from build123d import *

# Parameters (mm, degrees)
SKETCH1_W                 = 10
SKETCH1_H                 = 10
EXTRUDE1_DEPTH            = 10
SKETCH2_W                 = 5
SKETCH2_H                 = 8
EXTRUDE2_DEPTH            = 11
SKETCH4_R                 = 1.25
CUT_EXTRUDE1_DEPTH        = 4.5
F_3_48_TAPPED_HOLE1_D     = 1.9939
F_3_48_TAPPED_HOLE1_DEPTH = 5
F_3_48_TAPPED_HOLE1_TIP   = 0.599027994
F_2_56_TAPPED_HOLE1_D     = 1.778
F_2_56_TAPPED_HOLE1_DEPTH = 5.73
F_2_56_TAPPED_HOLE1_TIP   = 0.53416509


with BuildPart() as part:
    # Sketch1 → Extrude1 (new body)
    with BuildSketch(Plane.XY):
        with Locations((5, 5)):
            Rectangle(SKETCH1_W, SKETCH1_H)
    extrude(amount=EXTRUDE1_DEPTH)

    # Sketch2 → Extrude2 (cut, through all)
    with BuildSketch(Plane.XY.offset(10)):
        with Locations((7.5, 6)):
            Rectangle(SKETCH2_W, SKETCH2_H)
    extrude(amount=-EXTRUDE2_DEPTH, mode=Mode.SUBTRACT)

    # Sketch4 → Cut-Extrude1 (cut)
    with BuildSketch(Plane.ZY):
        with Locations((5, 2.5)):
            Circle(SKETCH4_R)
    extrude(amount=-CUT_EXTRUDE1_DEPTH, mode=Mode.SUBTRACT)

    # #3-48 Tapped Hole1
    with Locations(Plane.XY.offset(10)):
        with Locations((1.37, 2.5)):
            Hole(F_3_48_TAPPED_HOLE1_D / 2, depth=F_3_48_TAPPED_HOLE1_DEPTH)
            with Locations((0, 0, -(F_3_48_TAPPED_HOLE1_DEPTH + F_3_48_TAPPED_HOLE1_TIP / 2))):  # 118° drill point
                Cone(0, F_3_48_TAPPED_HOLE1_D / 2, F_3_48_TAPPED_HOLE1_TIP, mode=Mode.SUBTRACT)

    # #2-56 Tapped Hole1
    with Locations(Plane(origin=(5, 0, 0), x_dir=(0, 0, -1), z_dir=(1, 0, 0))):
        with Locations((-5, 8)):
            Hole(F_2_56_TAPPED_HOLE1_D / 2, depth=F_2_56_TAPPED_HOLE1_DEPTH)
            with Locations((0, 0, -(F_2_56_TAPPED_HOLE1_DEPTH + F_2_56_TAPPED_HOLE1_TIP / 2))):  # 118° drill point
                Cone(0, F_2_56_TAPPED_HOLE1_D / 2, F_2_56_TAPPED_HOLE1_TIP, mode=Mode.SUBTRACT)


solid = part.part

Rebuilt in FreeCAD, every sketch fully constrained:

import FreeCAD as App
import Part
import Sketcher
from FreeCAD import Vector

doc = App.newDocument("Part")
params = doc.addObject("Spreadsheet::Sheet", "Params")
for row, (alias, value) in enumerate([
    ("sketch1_width", "10 mm"),
    ("pad1_length", "10 mm"),
    ("sketch2_width", "5 mm"),
    ("sketch2_height", "8 mm"),
    ("sketch3_diameter", "2.5 mm"),
    ("pocket2_length", "4.5 mm"),
    ("hole_diameter", "1.9939 mm"),
    ("hole_depth", "5 mm"),
    ("hole2_diameter", "1.778 mm"),
    ("hole2_depth", "5.73 mm"),
], start=1):
    params.set(f"A{row}", alias)
    params.set(f"B{row}", "=" + value)
    params.setAlias(f"B{row}", alias)

body = doc.addObject("PartDesign::Body", "Body")

sketch1 = body.newObject("Sketcher::SketchObject", "Sketch")
sketch1.AttachmentSupport = (doc.getObject("XY_Plane"), [""])
sketch1.MapMode = "FlatFace"
sketch1.addGeometry([
    Part.LineSegment(Vector(0, 10, 0), Vector(0, 0, 0)),
    Part.LineSegment(Vector(0, 0, 0), Vector(10, 0, 0)),
    Part.LineSegment(Vector(10, 0, 0), Vector(10, 10, 0)),
    Part.LineSegment(Vector(10, 10, 0), Vector(0, 10, 0)),
], False)
sketch1.addConstraint([
    Sketcher.Constraint("Coincident", 0, 2, 1, 1),
    Sketcher.Constraint("Coincident", 1, 2, 2, 1),
    Sketcher.Constraint("Coincident", 2, 2, 3, 1),
    Sketcher.Constraint("Coincident", 3, 2, 0, 1),
    Sketcher.Constraint("Vertical", 0),
    Sketcher.Constraint("Horizontal", 1),
    Sketcher.Constraint("Vertical", 2),
    Sketcher.Constraint("Horizontal", 3),
    Sketcher.Constraint("Coincident", 0, 2, -1, 1),
    Sketcher.Constraint("Equal", 3, 0),
    Sketcher.Constraint("DistanceX", 1, 1, 1, 2, 10.0),
])
sketch1.setExpression("Constraints[10]", "Params.sketch1_width")
pad1 = body.newObject("PartDesign::Pad", "Pad")
pad1.Profile = sketch1
pad1.setExpression("Length", "Params.pad1_length")

sketch2 = body.newObject("Sketcher::SketchObject", "Sketch001")
sketch2.AttachmentSupport = (doc.getObject("XY_Plane"), [""])
sketch2.MapMode = "FlatFace"
sketch2.AttachmentOffset = App.Placement(Vector(0, 0, 10), App.Rotation())
sketch2.addGeometry([
    Part.LineSegment(Vector(5, 10, 0), Vector(5, 2, 0)),
    Part.LineSegment(Vector(5, 2, 0), Vector(10, 2, 0)),
    Part.LineSegment(Vector(10, 2, 0), Vector(10, 10, 0)),
    Part.LineSegment(Vector(10, 10, 0), Vector(5, 10, 0)),
], False)
sketch2.addConstraint([
    Sketcher.Constraint("Coincident", 0, 2, 1, 1),
    Sketcher.Constraint("Coincident", 1, 2, 2, 1),
    Sketcher.Constraint("Coincident", 2, 2, 3, 1),
    Sketcher.Constraint("Coincident", 3, 2, 0, 1),
    Sketcher.Constraint("Vertical", 0),
    Sketcher.Constraint("Horizontal", 1),
    Sketcher.Constraint("Vertical", 2),
    Sketcher.Constraint("Horizontal", 3),
    Sketcher.Constraint("DistanceX", 1, 1, 1, 2, 5.0),
    Sketcher.Constraint("DistanceY", 0, 2, 0, 1, 8.0),
    Sketcher.Constraint("DistanceX", -1, 1, 0, 2, 5.0),
    Sketcher.Constraint("DistanceY", -1, 1, 0, 2, 2.0),
])
sketch2.setExpression("Constraints[8]", "Params.sketch2_width")
sketch2.setExpression("Constraints[9]", "Params.sketch2_height")
pocket1 = body.newObject("PartDesign::Pocket", "Pocket")
pocket1.Profile = sketch2
pocket1.Type = "ThroughAll"

sketch3 = body.newObject("Sketcher::SketchObject", "Sketch002")
sketch3.AttachmentSupport = (doc.getObject("YZ_Plane"), [""])
sketch3.MapMode = "FlatFace"
sketch3.addGeometry(Part.Circle(Vector(2.5, 5, 0), Vector(0, 0, 1), 1.2), False)
sketch3.addConstraint([
    Sketcher.Constraint("Diameter", 0, 2.5),
    Sketcher.Constraint("DistanceY", -1, 1, 0, 3, 5.0),
    Sketcher.Constraint("DistanceX", -1, 1, 0, 3, 2.5),
])
sketch3.setExpression("Constraints[0]", "Params.sketch3_diameter")
pocket2 = body.newObject("PartDesign::Pocket", "Pocket001")
pocket2.Profile = sketch3
pocket2.setExpression("Length", "Params.pocket2_length")
pocket2.Reversed = True

sketch4 = body.newObject("Sketcher::SketchObject", "Sketch003")
sketch4.AttachmentSupport = (doc.getObject("XY_Plane"), [""])
sketch4.MapMode = "FlatFace"
sketch4.AttachmentOffset = App.Placement(Vector(0, 0, 10), App.Rotation())
sketch4.addGeometry(Part.Circle(Vector(1.4, 2.5, 0), Vector(0, 0, 1), 1), False)
sketch4.addConstraint([
    Sketcher.Constraint("Diameter", 0, 1.9939),
    Sketcher.Constraint("DistanceY", -1, 1, 0, 3, 2.5),
    Sketcher.Constraint("DistanceX", -1, 1, 0, 3, 1.37),
])
doc.recompute()
hole = body.newObject("PartDesign::Hole", "Hole")
hole.Profile = sketch4
hole.ThreadType = "None"
hole.setExpression("Diameter", "Params.hole_diameter")
hole.DepthType = "Dimension"
hole.setExpression("Depth", "Params.hole_depth")
hole.DrillPoint = "Angled"
hole.DrillPointAngle = 118

sketch5 = body.newObject("Sketcher::SketchObject", "Sketch004")
sketch5.AttachmentSupport = (doc.getObject("YZ_Plane"), [""])
sketch5.MapMode = "FlatFace"
sketch5.AttachmentOffset = App.Placement(Vector(0, 0, 5), App.Rotation())
sketch5.addGeometry(Part.Circle(Vector(8, 5, 0), Vector(0, 0, 1), 0.9), False)
sketch5.addConstraint([
    Sketcher.Constraint("Diameter", 0, 1.778),
    Sketcher.Constraint("DistanceX", -1, 1, 0, 3, 8.0),
    Sketcher.Constraint("DistanceY", -1, 1, 0, 3, 5.0),
])
doc.recompute()
hole2 = body.newObject("PartDesign::Hole", "Hole001")
hole2.Profile = sketch5
hole2.ThreadType = "None"
hole2.setExpression("Diameter", "Params.hole2_diameter")
hole2.DepthType = "Dimension"
hole2.setExpression("Depth", "Params.hole2_depth")
hole2.DrillPoint = "Angled"
hole2.DrillPointAngle = 118

doc.recompute()
